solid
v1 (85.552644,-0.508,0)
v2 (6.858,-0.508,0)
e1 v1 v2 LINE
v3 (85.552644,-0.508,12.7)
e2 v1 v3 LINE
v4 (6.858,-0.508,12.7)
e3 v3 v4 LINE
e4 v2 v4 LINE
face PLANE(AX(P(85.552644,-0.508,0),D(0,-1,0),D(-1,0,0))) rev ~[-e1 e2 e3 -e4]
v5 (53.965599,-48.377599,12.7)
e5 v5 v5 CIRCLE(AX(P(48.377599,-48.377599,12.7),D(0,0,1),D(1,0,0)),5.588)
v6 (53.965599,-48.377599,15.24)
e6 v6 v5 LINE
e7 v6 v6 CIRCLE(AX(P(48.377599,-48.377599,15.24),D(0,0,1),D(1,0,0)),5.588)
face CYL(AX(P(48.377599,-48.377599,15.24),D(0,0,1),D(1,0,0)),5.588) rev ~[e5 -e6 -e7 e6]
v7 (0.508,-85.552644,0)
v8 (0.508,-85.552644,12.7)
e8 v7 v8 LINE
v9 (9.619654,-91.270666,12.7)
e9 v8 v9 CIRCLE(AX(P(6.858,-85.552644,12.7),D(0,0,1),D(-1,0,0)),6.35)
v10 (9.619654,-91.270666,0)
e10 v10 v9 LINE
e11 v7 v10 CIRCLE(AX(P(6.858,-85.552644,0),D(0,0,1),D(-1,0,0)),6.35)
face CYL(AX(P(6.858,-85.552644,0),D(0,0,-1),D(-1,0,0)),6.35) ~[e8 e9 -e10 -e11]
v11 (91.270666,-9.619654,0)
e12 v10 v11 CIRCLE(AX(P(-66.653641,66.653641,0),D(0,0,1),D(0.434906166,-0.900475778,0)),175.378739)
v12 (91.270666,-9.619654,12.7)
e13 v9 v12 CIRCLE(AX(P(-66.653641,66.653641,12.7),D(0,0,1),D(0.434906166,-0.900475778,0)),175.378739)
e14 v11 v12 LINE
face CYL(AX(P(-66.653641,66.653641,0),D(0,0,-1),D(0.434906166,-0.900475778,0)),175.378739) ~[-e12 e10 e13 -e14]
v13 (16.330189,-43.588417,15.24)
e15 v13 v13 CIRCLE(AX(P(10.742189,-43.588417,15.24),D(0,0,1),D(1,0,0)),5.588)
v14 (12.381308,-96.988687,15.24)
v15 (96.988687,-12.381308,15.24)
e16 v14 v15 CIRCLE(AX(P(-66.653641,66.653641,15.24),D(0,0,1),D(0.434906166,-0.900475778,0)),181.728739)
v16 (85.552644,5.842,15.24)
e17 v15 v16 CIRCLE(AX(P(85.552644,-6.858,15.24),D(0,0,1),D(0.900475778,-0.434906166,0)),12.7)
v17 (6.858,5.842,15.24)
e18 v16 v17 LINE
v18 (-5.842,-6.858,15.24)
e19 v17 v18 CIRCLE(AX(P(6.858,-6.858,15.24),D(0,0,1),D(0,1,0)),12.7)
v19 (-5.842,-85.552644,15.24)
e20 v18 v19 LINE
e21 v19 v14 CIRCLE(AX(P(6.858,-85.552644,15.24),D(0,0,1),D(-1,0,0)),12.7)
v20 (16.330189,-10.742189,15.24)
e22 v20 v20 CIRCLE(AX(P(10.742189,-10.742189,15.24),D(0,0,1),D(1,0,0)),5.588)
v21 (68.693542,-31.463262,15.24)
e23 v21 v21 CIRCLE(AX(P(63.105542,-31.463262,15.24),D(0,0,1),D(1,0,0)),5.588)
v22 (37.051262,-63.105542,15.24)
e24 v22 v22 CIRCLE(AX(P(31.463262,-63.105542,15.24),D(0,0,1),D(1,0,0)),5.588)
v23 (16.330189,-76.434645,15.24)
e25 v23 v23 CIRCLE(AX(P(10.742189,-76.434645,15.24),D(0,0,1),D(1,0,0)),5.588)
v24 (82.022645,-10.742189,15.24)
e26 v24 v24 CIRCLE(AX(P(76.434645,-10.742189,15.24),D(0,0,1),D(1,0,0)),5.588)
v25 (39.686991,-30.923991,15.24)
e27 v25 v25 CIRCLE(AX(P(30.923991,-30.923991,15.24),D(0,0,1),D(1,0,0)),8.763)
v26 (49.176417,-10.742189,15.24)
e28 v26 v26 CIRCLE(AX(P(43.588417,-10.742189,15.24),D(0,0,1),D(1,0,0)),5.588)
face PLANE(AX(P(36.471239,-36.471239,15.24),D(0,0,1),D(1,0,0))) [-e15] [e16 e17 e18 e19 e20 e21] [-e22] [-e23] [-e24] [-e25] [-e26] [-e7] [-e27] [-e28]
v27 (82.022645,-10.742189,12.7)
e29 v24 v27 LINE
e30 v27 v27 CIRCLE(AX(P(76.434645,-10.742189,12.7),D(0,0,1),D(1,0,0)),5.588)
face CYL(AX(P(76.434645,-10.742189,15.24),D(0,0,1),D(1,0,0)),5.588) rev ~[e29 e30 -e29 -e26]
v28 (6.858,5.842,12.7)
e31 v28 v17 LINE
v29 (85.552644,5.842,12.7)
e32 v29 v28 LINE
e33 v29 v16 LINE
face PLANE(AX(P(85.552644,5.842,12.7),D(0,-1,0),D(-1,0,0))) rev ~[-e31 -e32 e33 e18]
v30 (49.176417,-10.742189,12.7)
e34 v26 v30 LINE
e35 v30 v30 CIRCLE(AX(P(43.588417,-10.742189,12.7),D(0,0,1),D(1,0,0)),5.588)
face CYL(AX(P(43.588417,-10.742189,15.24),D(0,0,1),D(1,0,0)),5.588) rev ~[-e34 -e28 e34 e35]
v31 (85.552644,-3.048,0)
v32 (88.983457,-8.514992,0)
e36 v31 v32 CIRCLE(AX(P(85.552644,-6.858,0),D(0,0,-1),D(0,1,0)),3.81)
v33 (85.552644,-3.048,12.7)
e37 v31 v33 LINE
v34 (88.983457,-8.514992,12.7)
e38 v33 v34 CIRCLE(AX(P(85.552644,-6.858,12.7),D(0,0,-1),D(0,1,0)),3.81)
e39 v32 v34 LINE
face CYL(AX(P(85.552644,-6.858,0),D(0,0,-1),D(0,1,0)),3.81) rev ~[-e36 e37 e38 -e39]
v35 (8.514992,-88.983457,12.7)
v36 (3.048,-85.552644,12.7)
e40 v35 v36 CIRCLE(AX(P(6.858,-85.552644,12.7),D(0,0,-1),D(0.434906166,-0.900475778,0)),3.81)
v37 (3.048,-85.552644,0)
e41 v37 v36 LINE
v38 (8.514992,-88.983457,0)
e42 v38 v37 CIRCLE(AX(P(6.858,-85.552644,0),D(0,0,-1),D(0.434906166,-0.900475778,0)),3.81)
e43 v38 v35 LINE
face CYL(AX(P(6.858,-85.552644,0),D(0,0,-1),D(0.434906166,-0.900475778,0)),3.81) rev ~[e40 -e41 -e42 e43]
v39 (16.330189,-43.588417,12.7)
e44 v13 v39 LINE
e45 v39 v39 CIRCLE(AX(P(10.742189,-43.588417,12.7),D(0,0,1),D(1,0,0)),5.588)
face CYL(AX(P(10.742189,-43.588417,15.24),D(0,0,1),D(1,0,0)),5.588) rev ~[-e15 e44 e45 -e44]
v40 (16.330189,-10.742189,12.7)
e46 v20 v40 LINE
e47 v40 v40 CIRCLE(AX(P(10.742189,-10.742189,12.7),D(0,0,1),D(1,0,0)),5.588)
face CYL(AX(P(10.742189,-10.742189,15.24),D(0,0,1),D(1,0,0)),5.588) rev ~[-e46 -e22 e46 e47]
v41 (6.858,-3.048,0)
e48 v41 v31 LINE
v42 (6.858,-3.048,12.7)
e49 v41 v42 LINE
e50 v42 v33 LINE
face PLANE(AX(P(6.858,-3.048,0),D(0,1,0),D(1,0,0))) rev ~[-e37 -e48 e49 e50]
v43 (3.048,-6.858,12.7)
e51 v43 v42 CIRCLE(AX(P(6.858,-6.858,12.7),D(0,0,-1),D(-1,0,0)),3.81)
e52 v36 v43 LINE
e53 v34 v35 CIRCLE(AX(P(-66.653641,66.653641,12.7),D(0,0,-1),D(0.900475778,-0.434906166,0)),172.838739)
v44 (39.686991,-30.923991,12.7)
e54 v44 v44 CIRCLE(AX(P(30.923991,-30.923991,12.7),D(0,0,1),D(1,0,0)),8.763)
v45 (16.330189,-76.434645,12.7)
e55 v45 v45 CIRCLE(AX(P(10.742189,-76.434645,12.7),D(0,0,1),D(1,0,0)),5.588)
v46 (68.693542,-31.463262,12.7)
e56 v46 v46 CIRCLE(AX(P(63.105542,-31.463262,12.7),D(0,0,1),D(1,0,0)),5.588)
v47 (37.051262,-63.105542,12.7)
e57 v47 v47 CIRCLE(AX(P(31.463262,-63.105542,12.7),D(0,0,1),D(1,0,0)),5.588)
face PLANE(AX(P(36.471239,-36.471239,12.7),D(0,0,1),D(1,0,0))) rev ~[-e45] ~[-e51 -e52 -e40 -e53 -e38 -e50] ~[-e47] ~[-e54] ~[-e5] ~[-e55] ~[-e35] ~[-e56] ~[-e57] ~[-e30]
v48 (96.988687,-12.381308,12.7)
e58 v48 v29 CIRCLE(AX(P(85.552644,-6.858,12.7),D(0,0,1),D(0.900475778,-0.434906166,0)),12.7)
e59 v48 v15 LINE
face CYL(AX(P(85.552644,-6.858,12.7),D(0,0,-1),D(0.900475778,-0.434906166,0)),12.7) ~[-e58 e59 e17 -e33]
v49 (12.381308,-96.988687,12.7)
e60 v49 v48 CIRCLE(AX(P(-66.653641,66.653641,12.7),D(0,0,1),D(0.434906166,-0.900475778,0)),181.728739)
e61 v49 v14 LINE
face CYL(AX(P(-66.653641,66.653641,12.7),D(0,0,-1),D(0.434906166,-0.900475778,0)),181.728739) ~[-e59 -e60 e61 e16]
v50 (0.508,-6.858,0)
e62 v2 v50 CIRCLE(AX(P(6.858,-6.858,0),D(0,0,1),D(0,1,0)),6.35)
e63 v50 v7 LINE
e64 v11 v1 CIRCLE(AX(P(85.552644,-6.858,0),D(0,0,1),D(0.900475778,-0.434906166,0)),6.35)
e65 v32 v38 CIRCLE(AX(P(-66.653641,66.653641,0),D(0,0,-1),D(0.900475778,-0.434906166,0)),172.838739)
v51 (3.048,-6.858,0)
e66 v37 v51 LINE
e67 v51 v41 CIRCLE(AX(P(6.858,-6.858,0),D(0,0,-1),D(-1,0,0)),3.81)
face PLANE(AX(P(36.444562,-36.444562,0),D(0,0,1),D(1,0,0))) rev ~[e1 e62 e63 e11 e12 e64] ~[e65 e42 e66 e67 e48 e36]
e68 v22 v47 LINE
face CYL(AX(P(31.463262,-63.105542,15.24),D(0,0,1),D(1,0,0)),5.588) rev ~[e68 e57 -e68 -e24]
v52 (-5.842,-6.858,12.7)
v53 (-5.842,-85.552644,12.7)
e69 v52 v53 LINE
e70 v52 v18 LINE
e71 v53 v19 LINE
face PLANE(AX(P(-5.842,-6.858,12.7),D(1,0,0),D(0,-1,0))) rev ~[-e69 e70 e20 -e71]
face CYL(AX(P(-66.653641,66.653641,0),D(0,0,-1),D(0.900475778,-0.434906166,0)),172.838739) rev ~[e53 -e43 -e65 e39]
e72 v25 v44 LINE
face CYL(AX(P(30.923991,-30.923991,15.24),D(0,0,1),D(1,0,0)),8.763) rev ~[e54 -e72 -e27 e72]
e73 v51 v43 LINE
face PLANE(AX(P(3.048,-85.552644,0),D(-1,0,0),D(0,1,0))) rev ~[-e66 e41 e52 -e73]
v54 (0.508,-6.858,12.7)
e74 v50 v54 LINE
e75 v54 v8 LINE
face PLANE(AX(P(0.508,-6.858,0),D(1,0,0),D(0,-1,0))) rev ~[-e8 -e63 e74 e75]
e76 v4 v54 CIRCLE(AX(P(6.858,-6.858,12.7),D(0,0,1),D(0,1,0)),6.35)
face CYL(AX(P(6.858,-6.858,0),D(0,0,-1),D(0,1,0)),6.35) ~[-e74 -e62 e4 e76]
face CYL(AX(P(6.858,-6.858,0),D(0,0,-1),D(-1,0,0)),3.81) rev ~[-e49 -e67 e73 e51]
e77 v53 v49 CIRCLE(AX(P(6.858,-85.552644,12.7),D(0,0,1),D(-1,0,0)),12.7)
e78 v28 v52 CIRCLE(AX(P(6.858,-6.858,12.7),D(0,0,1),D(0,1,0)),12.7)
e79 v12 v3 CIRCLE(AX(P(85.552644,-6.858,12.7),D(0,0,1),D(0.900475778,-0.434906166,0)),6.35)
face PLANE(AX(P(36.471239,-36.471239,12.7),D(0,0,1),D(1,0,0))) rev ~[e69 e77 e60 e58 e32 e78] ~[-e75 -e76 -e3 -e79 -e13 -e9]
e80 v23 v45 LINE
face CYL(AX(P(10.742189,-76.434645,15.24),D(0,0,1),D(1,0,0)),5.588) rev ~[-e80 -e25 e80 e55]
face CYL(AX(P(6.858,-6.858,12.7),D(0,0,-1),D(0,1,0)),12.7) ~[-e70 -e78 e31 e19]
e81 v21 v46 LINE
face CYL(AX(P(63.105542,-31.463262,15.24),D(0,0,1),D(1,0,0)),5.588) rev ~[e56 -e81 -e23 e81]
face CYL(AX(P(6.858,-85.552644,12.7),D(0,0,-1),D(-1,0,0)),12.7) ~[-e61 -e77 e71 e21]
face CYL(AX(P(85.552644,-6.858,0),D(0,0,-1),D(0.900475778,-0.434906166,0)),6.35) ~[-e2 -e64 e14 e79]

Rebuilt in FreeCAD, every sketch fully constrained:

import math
import FreeCAD as App
import Part
import Sketcher
from FreeCAD import Vector
Q = App.Units.Quantity

doc = App.newDocument("Part")
body = doc.addObject("PartDesign::Body", "Body")

# Sketch on XY plane
sketch1 = doc.addObject("Sketcher::SketchObject", "Sketch")
body.addObject(sketch1)
sketch1.AttachmentSupport = (doc.XY_Plane, [""])
sketch1.MapMode = "FlatFace"
sketch1.addGeometry([
    Part.ArcOfCircle(Part.Circle(Vector(6.858, -85.552644, 0), Vector(0, 0, 1), 6.35), math.radians(180), math.radians(295.779323)),  # 0
    Part.ArcOfCircle(Part.Circle(Vector(-66.653641, 66.653641, 0), Vector(0, 0, 1), 175.378739), math.radians(-64.220677), math.radians(-25.779323)),  # 1
    Part.ArcOfCircle(Part.Circle(Vector(85.552644, -6.858, 0), Vector(0, 0, 1), 6.35), math.radians(-25.779323), math.radians(90)),  # 2
    Part.LineSegment(Vector(85.552644, -0.508, 0), Vector(6.858, -0.508, 0)),  # 3
    Part.ArcOfCircle(Part.Circle(Vector(6.858, -6.858, 0), Vector(0, 0, 1), 6.35), math.radians(90), math.radians(180)),  # 4
    Part.LineSegment(Vector(0.508, -6.858, 0), Vector(0.508, -85.552644, 0)),  # 5
    Part.ArcOfCircle(Part.Circle(Vector(85.552644, -6.858, 0), Vector(0, 0, 1), 3.81), math.radians(-25.779323), math.radians(90)),  # 6
    Part.ArcOfCircle(Part.Circle(Vector(-66.653641, 66.653641, 0), Vector(0, 0, 1), 172.838739), math.radians(-64.220677), math.radians(-25.779323)),  # 7
    Part.ArcOfCircle(Part.Circle(Vector(6.858, -85.552644, 0), Vector(0, 0, 1), 3.81), math.radians(180), math.radians(295.779323)),  # 8
    Part.LineSegment(Vector(3.048, -85.552644, 0), Vector(3.048, -6.858, 0)),  # 9
    Part.ArcOfCircle(Part.Circle(Vector(6.858, -6.858, 0), Vector(0, 0, 1), 3.81), math.radians(90), math.radians(180)),  # 10
    Part.LineSegment(Vector(6.858, -3.048, 0), Vector(85.552644, -3.048, 0)),  # 11
], False)
sketch1.addConstraint([
    Sketcher.Constraint("Tangent", 0, 2, 1, 1),
    Sketcher.Constraint("Tangent", 1, 2, 2, 1),
    Sketcher.Constraint("Tangent", 2, 2, 3, 1),
    Sketcher.Constraint("Tangent", 3, 2, 4, 1),
    Sketcher.Constraint("Tangent", 4, 2, 5, 1),
    Sketcher.Constraint("Tangent", 5, 2, 0, 1),
    Sketcher.Constraint("Tangent", 6, 1, 7, 2),
    Sketcher.Constraint("Tangent", 7, 1, 8, 2),
    Sketcher.Constraint("Tangent", 8, 1, 9, 1),
    Sketcher.Constraint("Tangent", 9, 2, 10, 2),
    Sketcher.Constraint("Tangent", 10, 1, 11, 1),
    Sketcher.Constraint("Tangent", 11, 2, 6, 2),
    Sketcher.Constraint("Horizontal", 3),
    Sketcher.Constraint("Vertical", 5),
    Sketcher.Constraint("Vertical", 9),
    Sketcher.Constraint("Horizontal", 11),
    Sketcher.Constraint("Coincident", 6, 3, 2, 3),
    Sketcher.Constraint("Coincident", 7, 3, 1, 3),
    Sketcher.Constraint("Coincident", 8, 3, 0, 3),
    Sketcher.Constraint("Equal", 0, 2),
    Sketcher.Constraint("Equal", 2, 4),
    Sketcher.Constraint("Equal", 8, 10),
    Sketcher.Constraint("Equal", 11, 5),
    Sketcher.Constraint("Radius", 0, Q("0.25 in")),
    Sketcher.Constraint("Radius", 6, Q("0.15 in")),
    Sketcher.Constraint("DistanceX", -1, 1, 0, 3, Q("0.27 in")),
    Sketcher.Constraint("DistanceY", 2, 3, -1, 1, Q("0.27 in")),
    Sketcher.Constraint("Radius", 1, Q("175.378739 mm")),
    Sketcher.Constraint("DistanceX", 3, 2, 3, 1, Q("78.694644 mm")),
])
pad1 = doc.addObject("PartDesign::Pad", "Pad")
body.addObject(pad1)
pad1.Profile = sketch1
pad1.Length = Q("0.5 in")

# Sketch on XY plane
sketch2 = doc.addObject("Sketcher::SketchObject", "Sketch001")
body.addObject(sketch2)
sketch2.AttachmentSupport = (doc.XY_Plane, [""])
sketch2.MapMode = "FlatFace"
sketch2.AttachmentOffset = App.Placement(Vector(0, 0, 0.5 * 25.4), App.Rotation())
sketch2.addGeometry([
    Part.LineSegment(Vector(85.552644, 5.842, 0), Vector(6.858, 5.842, 0)),  # 0
    Part.ArcOfCircle(Part.Circle(Vector(6.858, -6.858, 0), Vector(0, 0, 1), 12.7), math.radians(90), math.radians(180)),  # 1
    Part.LineSegment(Vector(-5.842, -6.858, 0), Vector(-5.842, -85.552644, 0)),  # 2
    Part.ArcOfCircle(Part.Circle(Vector(6.858, -85.552644, 0), Vector(0, 0, 1), 12.7), math.radians(180), math.radians(295.779323)),  # 3
    Part.ArcOfCircle(Part.Circle(Vector(-66.653641, 66.653641, 0), Vector(0, 0, 1), 181.728739), math.radians(-64.220677), math.radians(-25.779323)),  # 4
    Part.ArcOfCircle(Part.Circle(Vector(85.552644, -6.858, 0), Vector(0, 0, 1), 12.7), math.radians(-25.779323), math.radians(90)),  # 5
], False)
sketch2.addConstraint([
    Sketcher.Constraint("Tangent", 0, 2, 1, 1),
    Sketcher.Constraint("Tangent", 1, 2, 2, 1),
    Sketcher.Constraint("Tangent", 2, 2, 3, 1),
    Sketcher.Constraint("Tangent", 3, 2, 4, 1),
    Sketcher.Constraint("Tangent", 4, 2, 5, 1),
    Sketcher.Constraint("Tangent", 5, 2, 0, 1),
    Sketcher.Constraint("Horizontal", 0),
    Sketcher.Constraint("Vertical", 2),
    Sketcher.Constraint("Equal", 1, 3),
    Sketcher.Constraint("Equal", 3, 5),
    Sketcher.Constraint("Equal", 0, 2),
    Sketcher.Constraint("Radius", 1, Q("0.5 in")),
    Sketcher.Constraint("DistanceX", -1, 1, 1, 3, Q("0.27 in")),
    Sketcher.Constraint("DistanceY", 1, 3, -1, 1, Q("0.27 in")),
    Sketcher.Constraint("Radius", 4, Q("181.728739 mm")),
    Sketcher.Constraint("DistanceX", 0, 2, 0, 1, Q("78.694644 mm")),
])
pad2 = doc.addObject("PartDesign::Pad", "Pad001")
body.addObject(pad2)
pad2.Profile = sketch2
pad2.Length = Q("0.1 in")

# Sketch on XY plane
sketch3 = doc.addObject("Sketcher::SketchObject", "Sketch002")
body.addObject(sketch3)
sketch3.AttachmentSupport = (doc.XY_Plane, [""])
sketch3.MapMode = "FlatFace"
sketch3.AttachmentOffset = App.Placement(Vector(0, 0, 0.6 * 25.4), App.Rotation())
sketch3.addGeometry([
    Part.Circle(Vector(10.742189, -10.742189, 0), Vector(0, 0, 1), 5.588),  # 0
    Part.Circle(Vector(30.923991, -30.923991, 0), Vector(0, 0, 1), 8.763),  # 1
    Part.Circle(Vector(43.588417, -10.742189, 0), Vector(0, 0, 1), 5.588),  # 2
    Part.Circle(Vector(10.742189, -43.588417, 0), Vector(0, 0, 1), 5.588),  # 3
    Part.Circle(Vector(10.742189, -76.434645, 0), Vector(0, 0, 1), 5.588),  # 4
    Part.Circle(Vector(31.463262, -63.105542, 0), Vector(0, 0, 1), 5.588),  # 5
    Part.Circle(Vector(48.377599, -48.377599, 0), Vector(0, 0, 1), 5.588),  # 6
    Part.Circle(Vector(63.105542, -31.463262, 0), Vector(0, 0, 1), 5.588),  # 7
    Part.Circle(Vector(76.434645, -10.742189, 0), Vector(0, 0, 1), 5.588),  # 8
], False)
sketch3.addConstraint([
    Sketcher.Constraint("Equal", 0, 2),
    Sketcher.Constraint("Equal", 2, 3),
    Sketcher.Constraint("Equal", 3, 4),
    Sketcher.Constraint("Equal", 4, 5),
    Sketcher.Constraint("Equal", 5, 6),
    Sketcher.Constraint("Equal", 6, 7),
    Sketcher.Constraint("Equal", 7, 8),
    Sketcher.Constraint("Horizontal", 0, 3, 2, 3),
    Sketcher.Constraint("Horizontal", 2, 3, 8, 3),
    Sketcher.Constraint("Vertical", 0, 3, 3, 3),
    Sketcher.Constraint("Vertical", 3, 3, 4, 3),
    Sketcher.Constraint("Diameter", 0, Q("0.44 in")),
    Sketcher.Constraint("Diameter", 1, Q("0.69 in")),
    Sketcher.Constraint("DistanceX", -1, 1, 6, 3, Q("48.377599 mm")),
    Sketcher.Constraint("DistanceY", 6, 3, -1, 1, Q("48.377599 mm")),
    Sketcher.Constraint("DistanceX", -1, 1, 0, 3, Q("10.742189 mm")),
    Sketcher.Constraint("DistanceY", 0, 3, -1, 1, Q("10.742189 mm")),
    Sketcher.Constraint("DistanceX", -1, 1, 1, 3, Q("30.923991 mm")),
    Sketcher.Constraint("DistanceY", 1, 3, -1, 1, Q("30.923991 mm")),
    Sketcher.Constraint("DistanceY", 5, 3, -1, 1, Q("63.105542 mm")),
    Sketcher.Constraint("DistanceX", -1, 1, 7, 3, Q("63.105542 mm")),
    Sketcher.Constraint("DistanceX", 0, 3, 2, 3, Q("32.846228 mm")),
    Sketcher.Constraint("DistanceY", 3, 3, 0, 3, Q("32.846228 mm")),
    Sketcher.Constraint("DistanceY", 4, 3, 3, 3, Q("32.846228 mm")),
    Sketcher.Constraint("DistanceX", 1, 3, 5, 3, Q("0.539271 mm")),
    Sketcher.Constraint("DistanceY", 7, 3, 1, 3, Q("0.539271 mm")),
    Sketcher.Constraint("DistanceX", 2, 3, 8, 3, Q("32.846228 mm")),
])
pocket1 = doc.addObject("PartDesign::Pocket", "Pocket")
body.addObject(pocket1)
pocket1.Profile = sketch3
pocket1.Length = Q("1 in")

doc.recompute()
